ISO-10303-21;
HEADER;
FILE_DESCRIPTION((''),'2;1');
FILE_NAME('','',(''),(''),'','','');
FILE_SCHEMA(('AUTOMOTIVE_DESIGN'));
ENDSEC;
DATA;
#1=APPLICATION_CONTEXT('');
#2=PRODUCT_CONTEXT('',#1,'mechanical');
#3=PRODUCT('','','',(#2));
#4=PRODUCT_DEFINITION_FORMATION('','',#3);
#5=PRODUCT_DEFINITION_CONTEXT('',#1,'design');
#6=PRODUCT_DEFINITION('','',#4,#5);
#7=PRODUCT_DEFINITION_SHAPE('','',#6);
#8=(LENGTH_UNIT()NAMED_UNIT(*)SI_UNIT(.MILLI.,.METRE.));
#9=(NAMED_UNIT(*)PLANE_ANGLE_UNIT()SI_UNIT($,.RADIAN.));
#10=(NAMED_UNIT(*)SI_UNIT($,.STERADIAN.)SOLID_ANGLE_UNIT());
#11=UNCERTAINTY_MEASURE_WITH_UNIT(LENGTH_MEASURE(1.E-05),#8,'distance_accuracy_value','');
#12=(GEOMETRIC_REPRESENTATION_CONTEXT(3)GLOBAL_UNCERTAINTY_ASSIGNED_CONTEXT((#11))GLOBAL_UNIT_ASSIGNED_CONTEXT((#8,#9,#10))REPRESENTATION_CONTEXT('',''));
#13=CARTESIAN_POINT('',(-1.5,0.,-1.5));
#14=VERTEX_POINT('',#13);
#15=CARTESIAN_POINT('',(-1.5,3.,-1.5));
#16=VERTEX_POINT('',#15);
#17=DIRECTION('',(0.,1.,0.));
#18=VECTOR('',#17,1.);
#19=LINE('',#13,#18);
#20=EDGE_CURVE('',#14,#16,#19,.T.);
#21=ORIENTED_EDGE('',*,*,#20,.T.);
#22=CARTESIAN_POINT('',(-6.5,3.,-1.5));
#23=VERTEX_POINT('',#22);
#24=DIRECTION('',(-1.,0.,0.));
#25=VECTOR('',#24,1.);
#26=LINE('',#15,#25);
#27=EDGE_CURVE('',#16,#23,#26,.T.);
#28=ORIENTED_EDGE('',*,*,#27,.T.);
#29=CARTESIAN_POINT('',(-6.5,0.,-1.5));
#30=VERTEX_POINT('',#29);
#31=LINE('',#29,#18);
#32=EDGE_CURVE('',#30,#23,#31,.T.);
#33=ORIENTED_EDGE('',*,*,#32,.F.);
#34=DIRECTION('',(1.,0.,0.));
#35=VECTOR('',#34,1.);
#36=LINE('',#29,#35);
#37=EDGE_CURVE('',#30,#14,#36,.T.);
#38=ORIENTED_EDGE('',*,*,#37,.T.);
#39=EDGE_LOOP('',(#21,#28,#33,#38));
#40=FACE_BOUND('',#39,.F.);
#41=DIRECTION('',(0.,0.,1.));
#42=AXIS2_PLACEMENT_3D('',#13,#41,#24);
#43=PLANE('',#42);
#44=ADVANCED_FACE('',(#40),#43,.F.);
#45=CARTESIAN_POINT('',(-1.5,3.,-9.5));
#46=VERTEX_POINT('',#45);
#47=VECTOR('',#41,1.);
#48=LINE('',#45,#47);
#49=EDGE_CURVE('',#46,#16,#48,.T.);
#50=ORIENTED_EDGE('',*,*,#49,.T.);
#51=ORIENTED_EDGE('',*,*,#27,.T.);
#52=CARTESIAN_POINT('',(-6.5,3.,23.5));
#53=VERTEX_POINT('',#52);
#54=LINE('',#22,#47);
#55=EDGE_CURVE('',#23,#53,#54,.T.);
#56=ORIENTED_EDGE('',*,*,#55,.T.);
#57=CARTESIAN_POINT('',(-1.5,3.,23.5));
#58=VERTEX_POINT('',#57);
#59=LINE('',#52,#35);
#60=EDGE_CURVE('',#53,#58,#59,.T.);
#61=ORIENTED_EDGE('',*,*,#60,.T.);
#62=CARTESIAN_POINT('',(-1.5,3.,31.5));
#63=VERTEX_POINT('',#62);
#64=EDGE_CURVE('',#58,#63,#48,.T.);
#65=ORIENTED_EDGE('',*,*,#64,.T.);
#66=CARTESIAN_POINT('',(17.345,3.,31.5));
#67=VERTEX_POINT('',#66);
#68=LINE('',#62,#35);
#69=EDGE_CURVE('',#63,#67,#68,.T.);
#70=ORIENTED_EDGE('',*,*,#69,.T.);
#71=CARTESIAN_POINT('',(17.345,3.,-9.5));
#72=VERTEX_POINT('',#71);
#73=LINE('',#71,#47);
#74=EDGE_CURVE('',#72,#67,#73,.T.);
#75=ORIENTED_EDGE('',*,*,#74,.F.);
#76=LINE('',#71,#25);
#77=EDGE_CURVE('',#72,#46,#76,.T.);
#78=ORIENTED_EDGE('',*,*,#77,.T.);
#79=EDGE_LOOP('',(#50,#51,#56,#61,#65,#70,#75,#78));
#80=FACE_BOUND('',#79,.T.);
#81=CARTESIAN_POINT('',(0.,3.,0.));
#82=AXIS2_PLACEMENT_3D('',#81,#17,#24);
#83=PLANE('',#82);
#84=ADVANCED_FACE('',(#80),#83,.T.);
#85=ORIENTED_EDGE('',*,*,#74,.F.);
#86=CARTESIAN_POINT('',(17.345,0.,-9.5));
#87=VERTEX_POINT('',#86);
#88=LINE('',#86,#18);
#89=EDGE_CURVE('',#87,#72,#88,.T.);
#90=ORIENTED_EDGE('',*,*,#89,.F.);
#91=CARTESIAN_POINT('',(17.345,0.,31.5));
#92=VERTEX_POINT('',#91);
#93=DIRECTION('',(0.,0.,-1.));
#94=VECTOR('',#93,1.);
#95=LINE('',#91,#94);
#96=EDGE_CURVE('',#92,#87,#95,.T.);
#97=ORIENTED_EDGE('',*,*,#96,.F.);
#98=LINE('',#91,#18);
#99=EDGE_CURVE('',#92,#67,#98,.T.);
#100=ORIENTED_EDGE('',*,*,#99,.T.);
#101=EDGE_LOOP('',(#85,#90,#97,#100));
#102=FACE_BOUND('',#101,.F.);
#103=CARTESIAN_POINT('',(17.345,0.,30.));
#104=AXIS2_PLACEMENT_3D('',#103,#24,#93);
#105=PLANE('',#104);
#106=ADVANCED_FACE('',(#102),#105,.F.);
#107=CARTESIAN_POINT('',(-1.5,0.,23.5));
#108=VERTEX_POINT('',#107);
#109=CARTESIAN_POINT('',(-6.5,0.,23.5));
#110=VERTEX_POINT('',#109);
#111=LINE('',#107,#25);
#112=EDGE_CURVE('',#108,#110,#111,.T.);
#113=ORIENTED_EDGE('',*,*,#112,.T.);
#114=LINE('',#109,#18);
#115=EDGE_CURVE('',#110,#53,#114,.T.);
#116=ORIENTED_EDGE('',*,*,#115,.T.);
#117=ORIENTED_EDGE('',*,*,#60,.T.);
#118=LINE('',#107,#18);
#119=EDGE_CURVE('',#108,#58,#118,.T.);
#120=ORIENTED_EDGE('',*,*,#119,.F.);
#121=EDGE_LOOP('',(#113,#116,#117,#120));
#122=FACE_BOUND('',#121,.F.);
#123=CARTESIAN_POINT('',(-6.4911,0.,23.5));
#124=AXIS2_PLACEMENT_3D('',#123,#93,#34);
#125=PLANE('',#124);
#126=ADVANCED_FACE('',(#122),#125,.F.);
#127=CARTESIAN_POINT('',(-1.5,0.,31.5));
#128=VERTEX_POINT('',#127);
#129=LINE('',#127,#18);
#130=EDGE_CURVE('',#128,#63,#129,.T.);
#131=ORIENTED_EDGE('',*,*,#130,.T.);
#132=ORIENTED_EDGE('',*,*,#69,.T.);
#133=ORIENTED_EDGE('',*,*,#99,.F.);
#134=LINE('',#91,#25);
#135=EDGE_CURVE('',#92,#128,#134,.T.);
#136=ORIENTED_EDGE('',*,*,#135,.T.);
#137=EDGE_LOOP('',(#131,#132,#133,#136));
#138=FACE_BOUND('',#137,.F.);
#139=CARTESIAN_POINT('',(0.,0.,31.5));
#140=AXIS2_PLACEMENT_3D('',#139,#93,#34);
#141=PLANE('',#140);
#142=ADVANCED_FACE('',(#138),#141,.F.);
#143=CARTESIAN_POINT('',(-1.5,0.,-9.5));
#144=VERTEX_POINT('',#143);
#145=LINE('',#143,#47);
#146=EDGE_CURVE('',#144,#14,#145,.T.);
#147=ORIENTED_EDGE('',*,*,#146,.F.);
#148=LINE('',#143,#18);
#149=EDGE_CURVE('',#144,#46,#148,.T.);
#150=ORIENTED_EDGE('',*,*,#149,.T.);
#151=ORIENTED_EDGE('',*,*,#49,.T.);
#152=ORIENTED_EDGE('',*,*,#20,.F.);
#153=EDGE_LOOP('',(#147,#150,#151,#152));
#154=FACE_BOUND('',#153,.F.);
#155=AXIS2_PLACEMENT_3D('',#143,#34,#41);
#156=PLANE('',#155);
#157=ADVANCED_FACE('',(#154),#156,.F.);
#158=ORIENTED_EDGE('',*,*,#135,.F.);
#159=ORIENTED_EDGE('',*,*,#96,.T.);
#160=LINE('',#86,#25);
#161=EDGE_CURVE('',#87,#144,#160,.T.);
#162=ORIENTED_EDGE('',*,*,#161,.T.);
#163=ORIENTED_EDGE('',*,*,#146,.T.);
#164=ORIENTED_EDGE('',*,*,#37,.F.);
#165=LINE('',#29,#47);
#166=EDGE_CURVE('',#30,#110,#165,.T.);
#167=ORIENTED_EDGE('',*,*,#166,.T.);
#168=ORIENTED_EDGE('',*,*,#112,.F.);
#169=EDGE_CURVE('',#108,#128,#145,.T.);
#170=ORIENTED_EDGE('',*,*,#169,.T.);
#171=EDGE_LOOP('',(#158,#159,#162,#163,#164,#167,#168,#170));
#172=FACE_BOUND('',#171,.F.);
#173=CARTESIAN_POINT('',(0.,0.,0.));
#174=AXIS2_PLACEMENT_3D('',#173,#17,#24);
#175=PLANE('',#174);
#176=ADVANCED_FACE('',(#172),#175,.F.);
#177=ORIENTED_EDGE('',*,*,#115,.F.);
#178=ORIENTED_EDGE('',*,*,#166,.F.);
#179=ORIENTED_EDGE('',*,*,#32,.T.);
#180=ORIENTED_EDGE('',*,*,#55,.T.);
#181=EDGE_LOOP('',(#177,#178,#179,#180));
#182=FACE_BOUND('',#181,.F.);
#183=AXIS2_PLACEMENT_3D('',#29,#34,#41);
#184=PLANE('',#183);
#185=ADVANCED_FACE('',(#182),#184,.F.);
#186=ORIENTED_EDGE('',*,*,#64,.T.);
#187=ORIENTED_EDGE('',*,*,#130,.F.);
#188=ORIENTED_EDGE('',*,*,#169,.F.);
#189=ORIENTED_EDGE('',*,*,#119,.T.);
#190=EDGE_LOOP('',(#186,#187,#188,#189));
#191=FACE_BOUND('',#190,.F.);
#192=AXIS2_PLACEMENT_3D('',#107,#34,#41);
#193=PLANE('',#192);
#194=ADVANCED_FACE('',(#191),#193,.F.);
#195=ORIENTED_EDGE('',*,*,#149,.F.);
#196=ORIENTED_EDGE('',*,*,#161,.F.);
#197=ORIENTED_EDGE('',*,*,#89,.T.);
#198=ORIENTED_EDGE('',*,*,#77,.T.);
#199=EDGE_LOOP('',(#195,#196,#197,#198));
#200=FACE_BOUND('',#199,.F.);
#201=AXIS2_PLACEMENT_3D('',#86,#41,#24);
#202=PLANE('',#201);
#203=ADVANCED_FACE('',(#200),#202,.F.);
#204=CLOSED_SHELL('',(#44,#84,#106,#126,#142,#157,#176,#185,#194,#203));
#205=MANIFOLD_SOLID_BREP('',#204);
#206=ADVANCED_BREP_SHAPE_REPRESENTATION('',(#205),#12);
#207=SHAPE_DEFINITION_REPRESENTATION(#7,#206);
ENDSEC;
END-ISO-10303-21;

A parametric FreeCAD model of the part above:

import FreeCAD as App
import Part
import Sketcher
from FreeCAD import Vector


def add_polygon(sketch, points):
    """Adds a closed chain of lines whose ends are joined by coincident constraints."""
    first, n = sketch.GeometryCount, len(points)
    for a, b in zip(points, points[1:] + points[:1]):
        sketch.addGeometry(Part.LineSegment(App.Vector(*a, 0), App.Vector(*b, 0)), False)
    for i in range(n):
        sketch.addConstraint(Sketcher.Constraint("Coincident", first + i, 2, first + (i + 1) % n, 1))

doc = App.newDocument("Part")
body = doc.addObject("PartDesign::Body", "Body")

# Sketch on XZ plane
sketch1 = doc.addObject("Sketcher::SketchObject", "Sketch")
body.addObject(sketch1)
sketch1.AttachmentSupport = (doc.XZ_Plane, [""])
sketch1.MapMode = "FlatFace"
add_polygon(sketch1, [(17.345, -9.5), (-1.5, -9.5), (-1.5, -1.5), (-6.5, -1.5), (-6.5, 23.5), (-1.5, 23.5), (-1.5, 31.5), (17.345, 31.5)])  # lines 0-7
sketch1.addConstraint([
    Sketcher.Constraint("Horizontal", 0),
    Sketcher.Constraint("Vertical", 1),
    Sketcher.Constraint("Horizontal", 2),
    Sketcher.Constraint("Vertical", 3),
    Sketcher.Constraint("Horizontal", 4),
    Sketcher.Constraint("Vertical", 5),
    Sketcher.Constraint("Horizontal", 6),
    Sketcher.Constraint("Vertical", 7),
    Sketcher.Constraint("Vertical", 1, 2, 4, 2),
    Sketcher.Constraint("Equal", 1, 5),
    Sketcher.Constraint("DistanceY", 3, 1, 3, 2, 25.0),
    Sketcher.Constraint("DistanceX", 0, 2, -1, 1, 1.5),
    Sketcher.Constraint("DistanceY", 1, 2, -1, 1, 1.5),
    Sketcher.Constraint("DistanceX", 2, 2, 2, 1, 5.0),
    Sketcher.Constraint("DistanceY", 1, 1, 1, 2, 8.0),
    Sketcher.Constraint("DistanceX", 0, 2, 0, 1, 18.845),
])
pad1 = doc.addObject("PartDesign::Pad", "Pad")
body.addObject(pad1)
pad1.Profile = sketch1
pad1.Length = 3
pad1.Reversed = True

doc.recompute()
